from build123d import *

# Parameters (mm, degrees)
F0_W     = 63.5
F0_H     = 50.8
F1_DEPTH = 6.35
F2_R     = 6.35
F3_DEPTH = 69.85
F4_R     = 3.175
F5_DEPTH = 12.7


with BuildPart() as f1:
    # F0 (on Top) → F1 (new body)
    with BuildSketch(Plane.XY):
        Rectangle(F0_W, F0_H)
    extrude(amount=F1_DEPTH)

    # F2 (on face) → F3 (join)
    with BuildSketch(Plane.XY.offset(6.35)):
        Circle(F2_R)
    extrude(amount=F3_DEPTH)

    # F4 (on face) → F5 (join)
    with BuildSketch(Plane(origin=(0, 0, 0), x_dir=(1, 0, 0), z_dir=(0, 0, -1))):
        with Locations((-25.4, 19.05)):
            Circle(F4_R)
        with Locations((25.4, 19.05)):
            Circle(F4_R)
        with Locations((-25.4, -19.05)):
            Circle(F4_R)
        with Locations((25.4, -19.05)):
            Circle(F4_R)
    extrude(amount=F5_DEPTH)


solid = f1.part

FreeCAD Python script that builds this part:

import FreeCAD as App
import Part
import Sketcher

V = App.Vector
Q = App.Units.Quantity


def add_polygon(sketch, points):
    """Adds a closed chain of lines whose ends are joined by coincident constraints."""
    first, n = sketch.GeometryCount, len(points)
    for a, b in zip(points, points[1:] + points[:1]):
        sketch.addGeometry(Part.LineSegment(App.Vector(*a, 0), App.Vector(*b, 0)), False)
    for i in range(n):
        sketch.addConstraint(Sketcher.Constraint("Coincident", first + i, 2, first + (i + 1) % n, 1))

doc = App.newDocument("Part")
body = doc.addObject("PartDesign::Body", "Body")

sketch1 = body.newObject("Sketcher::SketchObject", "Sketch")
sketch1.AttachmentSupport = (doc.getObject("XY_Plane"), [""])
sketch1.MapMode = "FlatFace"
add_polygon(sketch1, [(-31.75, 25.4), (-31.75, -25.4), (31.75, -25.4), (31.75, 25.4)])
sketch1.addConstraint(Sketcher.Constraint("Vertical", 0))
sketch1.addConstraint(Sketcher.Constraint("Horizontal", 1))
sketch1.addConstraint(Sketcher.Constraint("Vertical", 2))
sketch1.addConstraint(Sketcher.Constraint("Horizontal", 3))
sketch1.addConstraint(Sketcher.Constraint("Symmetric", 0, 2, 2, 2, -1, 1))
sketch1.addConstraint(Sketcher.Constraint("DistanceY", 0, 2, 0, 1, Q("2 in")))
sketch1.addConstraint(Sketcher.Constraint("DistanceX", 1, 1, 1, 2, Q("2.5 in")))
pad1 = body.newObject("PartDesign::Pad", "Pad")
pad1.Profile = sketch1
pad1.Length = Q("0.25 in")

sketch2 = body.newObject("Sketcher::SketchObject", "Sketch001")
sketch2.AttachmentSupport = (doc.getObject("XY_Plane"), [""])
sketch2.MapMode = "FlatFace"
sketch2.AttachmentOffset = App.Placement(V(0, 0, 0.25 * 25.4), App.Rotation())
sketch2.addGeometry(Part.Circle(V(0, 0, 0), V(0, 0, 1), 6.35), False)
sketch2.addConstraint(Sketcher.Constraint("Coincident", 0, 3, -1, 1))
sketch2.addConstraint(Sketcher.Constraint("Diameter", 0, Q("0.5 in")))
pad2 = body.newObject("PartDesign::Pad", "Pad001")
pad2.Profile = sketch2
pad2.Length = Q("2.75 in")

sketch3 = body.newObject("Sketcher::SketchObject", "Sketch002")
sketch3.AttachmentSupport = (doc.getObject("XY_Plane"), [""])
sketch3.MapMode = "FlatFace"
sketch3.addGeometry(Part.Circle(V(-25.4, -19.05, 0), V(0, 0, 1), 3.175), False)
sketch3.addGeometry(Part.Circle(V(25.4, -19.05, 0), V(0, 0, 1), 3.175), False)
sketch3.addGeometry(Part.Circle(V(-25.4, 19.05, 0), V(0, 0, 1), 3.175), False)
sketch3.addGeometry(Part.Circle(V(25.4, 19.05, 0), V(0, 0, 1), 3.175), False)
sketch3.addConstraint(Sketcher.Constraint("Equal", 0, 1))
sketch3.addConstraint(Sketcher.Constraint("Equal", 1, 2))
sketch3.addConstraint(Sketcher.Constraint("Equal", 2, 3))
sketch3.addConstraint(Sketcher.Constraint("Symmetric", 1, 3, 2, 3, -1, 1))
sketch3.addConstraint(Sketcher.Constraint("Symmetric", 0, 3, 3, 3, -1, 1))
sketch3.addConstraint(Sketcher.Constraint("Symmetric", 0, 3, 1, 3, -2))
sketch3.addConstraint(Sketcher.Constraint("Diameter", 0, Q("0.25 in")))
sketch3.addConstraint(Sketcher.Constraint("DistanceX", 0, 3, -1, 1, Q("1 in")))
sketch3.addConstraint(Sketcher.Constraint("DistanceY", 0, 3, 2, 3, Q("1.5 in")))
pad3 = body.newObject("PartDesign::Pad", "Pad002")
pad3.Profile = sketch3
pad3.Length = Q("0.5 in")
pad3.Reversed = True

doc.recompute()
